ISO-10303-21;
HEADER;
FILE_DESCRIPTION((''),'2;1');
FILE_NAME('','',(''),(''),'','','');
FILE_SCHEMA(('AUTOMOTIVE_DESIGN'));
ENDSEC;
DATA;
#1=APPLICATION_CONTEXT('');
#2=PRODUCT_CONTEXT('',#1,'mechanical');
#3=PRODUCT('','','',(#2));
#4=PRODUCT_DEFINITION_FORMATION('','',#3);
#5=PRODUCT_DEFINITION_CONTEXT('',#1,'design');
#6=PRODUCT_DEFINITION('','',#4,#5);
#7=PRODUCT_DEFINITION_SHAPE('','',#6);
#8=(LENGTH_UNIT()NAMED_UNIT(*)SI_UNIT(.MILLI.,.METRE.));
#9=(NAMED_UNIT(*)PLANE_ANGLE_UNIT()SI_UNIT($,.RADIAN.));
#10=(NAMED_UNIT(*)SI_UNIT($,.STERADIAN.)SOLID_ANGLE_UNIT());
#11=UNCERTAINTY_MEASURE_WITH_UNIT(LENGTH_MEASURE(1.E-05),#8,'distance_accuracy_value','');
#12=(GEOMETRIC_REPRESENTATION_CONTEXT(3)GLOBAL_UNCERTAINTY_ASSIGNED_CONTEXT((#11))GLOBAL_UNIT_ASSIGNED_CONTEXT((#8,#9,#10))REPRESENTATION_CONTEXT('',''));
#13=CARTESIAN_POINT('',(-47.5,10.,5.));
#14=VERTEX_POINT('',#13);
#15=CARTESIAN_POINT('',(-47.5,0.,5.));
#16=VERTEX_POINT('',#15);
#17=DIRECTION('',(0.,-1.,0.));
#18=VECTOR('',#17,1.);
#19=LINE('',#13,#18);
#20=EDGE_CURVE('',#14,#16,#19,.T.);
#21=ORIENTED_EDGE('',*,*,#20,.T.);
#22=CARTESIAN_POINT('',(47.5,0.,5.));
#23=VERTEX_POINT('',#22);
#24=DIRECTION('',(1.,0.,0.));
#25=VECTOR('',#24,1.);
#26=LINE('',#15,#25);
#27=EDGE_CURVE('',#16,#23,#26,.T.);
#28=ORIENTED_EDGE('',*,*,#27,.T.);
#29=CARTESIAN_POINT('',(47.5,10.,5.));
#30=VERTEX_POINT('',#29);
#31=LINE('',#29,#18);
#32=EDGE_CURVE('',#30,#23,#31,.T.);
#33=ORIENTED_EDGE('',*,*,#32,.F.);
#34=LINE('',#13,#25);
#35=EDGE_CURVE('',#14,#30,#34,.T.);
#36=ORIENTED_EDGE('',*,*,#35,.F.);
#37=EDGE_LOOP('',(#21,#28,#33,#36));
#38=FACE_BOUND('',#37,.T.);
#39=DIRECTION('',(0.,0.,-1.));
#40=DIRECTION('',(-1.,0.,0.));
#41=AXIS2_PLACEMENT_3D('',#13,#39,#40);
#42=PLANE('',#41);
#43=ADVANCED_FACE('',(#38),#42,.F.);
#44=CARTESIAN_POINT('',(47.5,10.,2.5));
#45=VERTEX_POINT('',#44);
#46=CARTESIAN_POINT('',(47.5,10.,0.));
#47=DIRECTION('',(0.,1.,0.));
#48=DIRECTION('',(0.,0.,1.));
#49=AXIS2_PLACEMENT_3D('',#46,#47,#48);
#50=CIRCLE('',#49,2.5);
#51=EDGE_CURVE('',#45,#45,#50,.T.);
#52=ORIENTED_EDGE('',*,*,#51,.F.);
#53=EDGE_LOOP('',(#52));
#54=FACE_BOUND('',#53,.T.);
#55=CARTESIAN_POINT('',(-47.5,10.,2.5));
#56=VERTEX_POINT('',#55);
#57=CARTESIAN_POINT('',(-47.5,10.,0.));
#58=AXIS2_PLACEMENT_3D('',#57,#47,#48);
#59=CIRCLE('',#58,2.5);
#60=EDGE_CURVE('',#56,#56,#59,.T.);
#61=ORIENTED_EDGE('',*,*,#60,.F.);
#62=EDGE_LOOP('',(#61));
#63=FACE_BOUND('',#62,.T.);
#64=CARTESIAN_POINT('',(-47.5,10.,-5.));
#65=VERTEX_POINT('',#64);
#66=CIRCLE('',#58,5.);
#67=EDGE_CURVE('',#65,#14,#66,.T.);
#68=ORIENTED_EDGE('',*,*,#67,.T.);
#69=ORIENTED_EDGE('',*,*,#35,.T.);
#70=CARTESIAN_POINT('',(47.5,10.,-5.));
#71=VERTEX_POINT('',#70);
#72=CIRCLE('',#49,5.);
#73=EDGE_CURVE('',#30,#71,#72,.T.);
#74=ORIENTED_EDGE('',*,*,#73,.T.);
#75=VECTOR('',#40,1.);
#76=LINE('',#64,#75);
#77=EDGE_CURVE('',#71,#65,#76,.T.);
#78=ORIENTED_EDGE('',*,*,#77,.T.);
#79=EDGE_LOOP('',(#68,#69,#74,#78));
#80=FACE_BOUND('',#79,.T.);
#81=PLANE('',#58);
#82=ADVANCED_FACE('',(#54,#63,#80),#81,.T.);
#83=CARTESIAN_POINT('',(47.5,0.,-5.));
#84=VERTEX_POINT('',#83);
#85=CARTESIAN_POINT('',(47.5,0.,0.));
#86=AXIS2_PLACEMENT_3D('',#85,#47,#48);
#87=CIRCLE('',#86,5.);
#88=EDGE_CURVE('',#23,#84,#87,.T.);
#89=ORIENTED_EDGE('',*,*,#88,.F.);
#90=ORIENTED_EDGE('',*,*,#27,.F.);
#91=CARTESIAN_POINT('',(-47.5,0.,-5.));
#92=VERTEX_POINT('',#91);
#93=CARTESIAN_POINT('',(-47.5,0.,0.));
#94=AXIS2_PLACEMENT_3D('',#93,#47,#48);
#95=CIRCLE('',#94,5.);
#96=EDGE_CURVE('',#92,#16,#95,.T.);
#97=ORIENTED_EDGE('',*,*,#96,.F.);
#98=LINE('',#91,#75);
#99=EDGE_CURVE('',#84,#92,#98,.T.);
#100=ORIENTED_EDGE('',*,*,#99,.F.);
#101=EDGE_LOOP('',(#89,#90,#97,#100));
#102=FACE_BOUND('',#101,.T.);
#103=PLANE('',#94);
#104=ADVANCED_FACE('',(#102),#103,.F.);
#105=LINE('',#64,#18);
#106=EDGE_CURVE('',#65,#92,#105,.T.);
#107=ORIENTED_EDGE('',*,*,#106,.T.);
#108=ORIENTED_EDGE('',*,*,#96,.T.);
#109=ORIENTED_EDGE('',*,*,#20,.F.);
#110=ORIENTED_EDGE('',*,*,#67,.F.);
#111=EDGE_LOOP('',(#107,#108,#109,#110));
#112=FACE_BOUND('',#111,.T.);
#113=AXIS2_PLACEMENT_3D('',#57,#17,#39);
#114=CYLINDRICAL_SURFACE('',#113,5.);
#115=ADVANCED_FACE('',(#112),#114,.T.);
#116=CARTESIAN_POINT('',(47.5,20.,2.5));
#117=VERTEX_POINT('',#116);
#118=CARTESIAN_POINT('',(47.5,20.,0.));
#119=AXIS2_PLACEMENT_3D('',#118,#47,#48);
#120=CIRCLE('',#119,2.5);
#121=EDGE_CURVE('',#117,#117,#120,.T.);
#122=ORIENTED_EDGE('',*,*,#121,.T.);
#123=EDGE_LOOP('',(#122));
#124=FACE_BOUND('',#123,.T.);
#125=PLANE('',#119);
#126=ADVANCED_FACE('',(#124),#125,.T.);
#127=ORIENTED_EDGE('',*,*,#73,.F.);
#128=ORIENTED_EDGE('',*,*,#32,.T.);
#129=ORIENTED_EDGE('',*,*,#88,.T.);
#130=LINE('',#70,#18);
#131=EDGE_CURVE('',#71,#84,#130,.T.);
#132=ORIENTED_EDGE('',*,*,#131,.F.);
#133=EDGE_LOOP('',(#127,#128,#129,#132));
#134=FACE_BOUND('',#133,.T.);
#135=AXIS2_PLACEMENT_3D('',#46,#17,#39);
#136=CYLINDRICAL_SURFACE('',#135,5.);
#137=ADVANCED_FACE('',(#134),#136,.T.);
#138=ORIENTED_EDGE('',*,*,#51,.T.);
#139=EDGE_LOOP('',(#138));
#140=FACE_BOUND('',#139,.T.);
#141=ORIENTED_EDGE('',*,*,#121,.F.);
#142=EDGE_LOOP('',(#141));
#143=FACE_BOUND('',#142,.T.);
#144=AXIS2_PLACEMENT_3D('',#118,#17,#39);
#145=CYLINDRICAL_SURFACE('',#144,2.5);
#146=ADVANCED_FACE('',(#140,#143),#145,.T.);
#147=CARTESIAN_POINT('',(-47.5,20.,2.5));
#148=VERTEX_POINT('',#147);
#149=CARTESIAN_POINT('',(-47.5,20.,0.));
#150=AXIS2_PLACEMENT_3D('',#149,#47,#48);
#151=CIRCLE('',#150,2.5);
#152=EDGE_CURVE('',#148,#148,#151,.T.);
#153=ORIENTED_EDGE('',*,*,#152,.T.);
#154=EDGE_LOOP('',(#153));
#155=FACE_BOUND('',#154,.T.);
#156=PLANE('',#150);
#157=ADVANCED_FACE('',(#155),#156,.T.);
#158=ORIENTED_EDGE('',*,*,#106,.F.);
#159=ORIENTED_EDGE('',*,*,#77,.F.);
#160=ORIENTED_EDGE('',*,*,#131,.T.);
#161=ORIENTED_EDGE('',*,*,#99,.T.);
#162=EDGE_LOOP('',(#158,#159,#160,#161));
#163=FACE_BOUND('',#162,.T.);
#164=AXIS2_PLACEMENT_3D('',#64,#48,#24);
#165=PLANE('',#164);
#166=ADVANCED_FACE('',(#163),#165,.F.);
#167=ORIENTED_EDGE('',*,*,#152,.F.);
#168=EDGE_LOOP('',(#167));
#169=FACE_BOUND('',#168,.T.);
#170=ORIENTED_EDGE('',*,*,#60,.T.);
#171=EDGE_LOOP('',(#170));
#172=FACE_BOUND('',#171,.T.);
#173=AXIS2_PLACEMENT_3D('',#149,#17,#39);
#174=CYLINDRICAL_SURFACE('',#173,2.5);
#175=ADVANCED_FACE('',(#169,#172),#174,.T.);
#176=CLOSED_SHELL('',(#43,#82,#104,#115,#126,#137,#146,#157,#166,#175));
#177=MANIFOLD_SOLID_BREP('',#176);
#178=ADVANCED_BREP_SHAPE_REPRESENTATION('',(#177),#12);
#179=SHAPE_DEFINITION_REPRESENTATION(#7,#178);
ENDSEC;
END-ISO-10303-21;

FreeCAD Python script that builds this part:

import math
import FreeCAD as App
import Part
import Sketcher

doc = App.newDocument("Part")
body = doc.addObject("PartDesign::Body", "Body")

# Sketch on XZ plane
sketch1 = body.newObject("Sketcher::SketchObject", "Sketch")
sketch1.AttachmentSupport = (doc.getObject("XZ_Plane"), [""])
sketch1.MapMode = "FlatFace"
sketch1.addGeometry(Part.LineSegment(App.Vector(47.5, -5, 0), App.Vector(-47.5, -5, 0)), False)
sketch1.addGeometry(Part.ArcOfCircle(Part.Circle(App.Vector(-47.5, 0, 0), App.Vector(0, 0, 1), 5), math.radians(90), math.radians(270)), False)
sketch1.addGeometry(Part.LineSegment(App.Vector(-47.5, 5, 0), App.Vector(47.5, 5, 0)), False)
sketch1.addGeometry(Part.ArcOfCircle(Part.Circle(App.Vector(47.5, 0, 0), App.Vector(0, 0, 1), 5), math.radians(-90), math.radians(90)), False)
sketch1.addConstraint(Sketcher.Constraint("Tangent", 0, 2, 1, 2))
sketch1.addConstraint(Sketcher.Constraint("Tangent", 1, 1, 2, 1))
sketch1.addConstraint(Sketcher.Constraint("Tangent", 2, 2, 3, 2))
sketch1.addConstraint(Sketcher.Constraint("Tangent", 3, 1, 0, 1))
sketch1.addConstraint(Sketcher.Constraint("Horizontal", 0))
sketch1.addConstraint(Sketcher.Constraint("Horizontal", 2))
sketch1.addConstraint(Sketcher.Constraint("Symmetric", 1, 3, 3, 3, -1, 1))
sketch1.addConstraint(Sketcher.Constraint("Radius", 1, 5.0))
sketch1.addConstraint(Sketcher.Constraint("DistanceX", 0, 2, 0, 1, 95.0))
pad1 = body.newObject("PartDesign::Pad", "Pad")
pad1.Profile = sketch1
pad1.Length = 10
pad1.Reversed = True

# Sketch on XZ plane
sketch2 = body.newObject("Sketcher::SketchObject", "Sketch001")
sketch2.AttachmentSupport = (doc.getObject("XZ_Plane"), [""])
sketch2.MapMode = "FlatFace"
sketch2.AttachmentOffset = App.Placement(App.Vector(0, 0, -10), App.Rotation())
sketch2.addGeometry(Part.Circle(App.Vector(-47.5, 0, 0), App.Vector(0, 0, 1), 2.5), False)
sketch2.addGeometry(Part.Circle(App.Vector(47.5, 0, 0), App.Vector(0, 0, 1), 2.5), False)
sketch2.addConstraint(Sketcher.Constraint("Equal", 0, 1))
sketch2.addConstraint(Sketcher.Constraint("Symmetric", 0, 3, 1, 3, -1, 1))
sketch2.addConstraint(Sketcher.Constraint("PointOnObject", 0, 3, -1))
sketch2.addConstraint(Sketcher.Constraint("Diameter", 0, 5.0))
sketch2.addConstraint(Sketcher.Constraint("DistanceX", 0, 3, 1, 3, 95.0))
pad2 = body.newObject("PartDesign::Pad", "Pad001")
pad2.Profile = sketch2
pad2.Length = 10
pad2.Reversed = True

doc.recompute()
